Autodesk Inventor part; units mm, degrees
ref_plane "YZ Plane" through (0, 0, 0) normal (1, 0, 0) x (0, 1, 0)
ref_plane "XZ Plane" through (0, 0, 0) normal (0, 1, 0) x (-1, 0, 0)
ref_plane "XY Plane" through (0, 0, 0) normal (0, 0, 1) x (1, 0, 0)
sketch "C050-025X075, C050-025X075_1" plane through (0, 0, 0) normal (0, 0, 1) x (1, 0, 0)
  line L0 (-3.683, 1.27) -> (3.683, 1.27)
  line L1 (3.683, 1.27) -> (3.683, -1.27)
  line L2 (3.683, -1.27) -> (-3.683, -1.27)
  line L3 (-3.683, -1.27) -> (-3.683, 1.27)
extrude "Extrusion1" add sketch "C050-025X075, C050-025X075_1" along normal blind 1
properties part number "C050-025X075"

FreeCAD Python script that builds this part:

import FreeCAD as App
import Part
import Sketcher
Q = App.Units.Quantity


def add_polygon(sketch, points):
    """Adds a closed chain of lines whose ends are joined by coincident constraints."""
    first, n = sketch.GeometryCount, len(points)
    for a, b in zip(points, points[1:] + points[:1]):
        sketch.addGeometry(Part.LineSegment(App.Vector(*a, 0), App.Vector(*b, 0)), False)
    for i in range(n):
        sketch.addConstraint(Sketcher.Constraint("Coincident", first + i, 2, first + (i + 1) % n, 1))

doc = App.newDocument("Part")
body = doc.addObject("PartDesign::Body", "Body")

# Sketch on XY plane
sketch1 = body.newObject("Sketcher::SketchObject", "Sketch")
sketch1.AttachmentSupport = (doc.getObject("XY_Plane"), [""])
sketch1.MapMode = "FlatFace"
add_polygon(sketch1, [(3.7, 1.3), (-3.7, 1.3), (-3.7, -1.3), (3.7, -1.3)])  # lines 0-3
sketch1.addConstraint([
    Sketcher.Constraint("Horizontal", 0),
    Sketcher.Constraint("Vertical", 1),
    Sketcher.Constraint("Horizontal", 2),
    Sketcher.Constraint("Vertical", 3),
    Sketcher.Constraint("Symmetric", 0, 2, 2, 2, -1, 1),
    Sketcher.Constraint("DistanceY", 1, 2, 1, 1, Q("0.1 in")),
    Sketcher.Constraint("DistanceX", 0, 2, 0, 1, Q("0.29 in")),
])
pad1 = body.newObject("PartDesign::Pad", "Pad")
pad1.Profile = sketch1
pad1.Length = 1

doc.recompute()
